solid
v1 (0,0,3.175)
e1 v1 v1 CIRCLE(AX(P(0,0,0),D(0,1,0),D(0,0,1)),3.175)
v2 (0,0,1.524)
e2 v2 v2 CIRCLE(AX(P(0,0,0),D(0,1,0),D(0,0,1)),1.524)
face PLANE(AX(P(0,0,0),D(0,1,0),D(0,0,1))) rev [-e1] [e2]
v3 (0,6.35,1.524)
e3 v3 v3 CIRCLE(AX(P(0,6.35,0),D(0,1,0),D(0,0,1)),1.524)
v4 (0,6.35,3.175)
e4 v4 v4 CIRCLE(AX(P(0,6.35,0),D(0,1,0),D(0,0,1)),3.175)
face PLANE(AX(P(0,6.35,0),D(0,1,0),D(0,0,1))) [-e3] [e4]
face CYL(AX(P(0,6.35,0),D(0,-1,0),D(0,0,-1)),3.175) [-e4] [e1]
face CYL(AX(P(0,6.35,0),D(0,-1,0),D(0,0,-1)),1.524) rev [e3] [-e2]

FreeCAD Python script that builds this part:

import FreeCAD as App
import Part
import Sketcher
Q = App.Units.Quantity

doc = App.newDocument("Part")
body = doc.addObject("PartDesign::Body", "Body")

sketch1 = doc.addObject("Sketcher::SketchObject", "Sketch")
body.addObject(sketch1)
sketch1.AttachmentSupport = (doc.XZ_Plane, [""])
sketch1.MapMode = "FlatFace"
sketch1.addGeometry([
    Part.Circle(App.Vector(0, 0, 0), App.Vector(0, 0, 1), 3.175),
    Part.Circle(App.Vector(0, 0, 0), App.Vector(0, 0, 1), 1.524),
], False)
sketch1.addConstraint([
    Sketcher.Constraint("Coincident", 0, 3, -1, 1),
    Sketcher.Constraint("Coincident", 1, 3, -1, 1),
    Sketcher.Constraint("Diameter", 0, Q("0.25 in")),
    Sketcher.Constraint("Diameter", 1, Q("0.12 in")),
])
pad1 = doc.addObject("PartDesign::Pad", "Pad")
body.addObject(pad1)
pad1.Profile = sketch1
pad1.Length = Q("0.25 in")
pad1.Reversed = True

doc.recompute()
